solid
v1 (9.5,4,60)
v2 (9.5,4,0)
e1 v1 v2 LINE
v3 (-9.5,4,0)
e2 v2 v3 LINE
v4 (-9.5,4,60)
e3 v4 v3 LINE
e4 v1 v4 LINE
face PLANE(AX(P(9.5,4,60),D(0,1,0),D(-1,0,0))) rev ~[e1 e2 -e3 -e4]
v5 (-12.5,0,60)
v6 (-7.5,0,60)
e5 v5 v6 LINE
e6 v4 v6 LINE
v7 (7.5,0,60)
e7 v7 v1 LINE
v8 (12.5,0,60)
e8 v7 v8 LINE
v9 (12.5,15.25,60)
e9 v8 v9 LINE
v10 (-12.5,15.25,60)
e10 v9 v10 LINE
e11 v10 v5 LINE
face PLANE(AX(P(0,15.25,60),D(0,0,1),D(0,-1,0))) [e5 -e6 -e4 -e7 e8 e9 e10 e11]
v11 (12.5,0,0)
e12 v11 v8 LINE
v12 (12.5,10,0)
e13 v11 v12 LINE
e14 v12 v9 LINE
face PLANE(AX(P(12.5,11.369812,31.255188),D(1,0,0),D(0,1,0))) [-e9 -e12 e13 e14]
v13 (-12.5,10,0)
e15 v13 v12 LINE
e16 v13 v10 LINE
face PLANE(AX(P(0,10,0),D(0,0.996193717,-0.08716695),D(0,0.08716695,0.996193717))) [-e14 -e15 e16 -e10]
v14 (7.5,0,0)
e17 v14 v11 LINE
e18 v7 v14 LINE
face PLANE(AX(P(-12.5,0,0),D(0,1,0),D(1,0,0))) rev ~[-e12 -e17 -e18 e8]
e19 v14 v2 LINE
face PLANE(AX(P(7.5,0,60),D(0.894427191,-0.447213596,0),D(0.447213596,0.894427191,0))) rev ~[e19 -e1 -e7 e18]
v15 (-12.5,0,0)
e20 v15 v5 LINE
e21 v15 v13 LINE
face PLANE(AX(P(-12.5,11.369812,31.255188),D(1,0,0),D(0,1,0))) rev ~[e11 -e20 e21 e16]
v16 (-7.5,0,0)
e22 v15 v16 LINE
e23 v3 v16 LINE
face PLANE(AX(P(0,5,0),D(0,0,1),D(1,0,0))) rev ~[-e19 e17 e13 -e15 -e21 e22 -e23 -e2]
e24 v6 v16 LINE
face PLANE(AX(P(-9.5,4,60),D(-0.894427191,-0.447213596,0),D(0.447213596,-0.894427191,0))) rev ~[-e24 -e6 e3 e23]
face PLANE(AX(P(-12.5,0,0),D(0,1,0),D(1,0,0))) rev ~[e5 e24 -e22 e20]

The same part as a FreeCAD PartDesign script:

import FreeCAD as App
import Part
import Sketcher

V = App.Vector


def add_polygon(sketch, points):
    """Adds a closed chain of lines whose ends are joined by coincident constraints."""
    first, n = sketch.GeometryCount, len(points)
    for a, b in zip(points, points[1:] + points[:1]):
        sketch.addGeometry(Part.LineSegment(App.Vector(*a, 0), App.Vector(*b, 0)), False)
    for i in range(n):
        sketch.addConstraint(Sketcher.Constraint("Coincident", first + i, 2, first + (i + 1) % n, 1))

doc = App.newDocument("Part")
body = doc.addObject("PartDesign::Body", "Body")

# Sketch on XY plane
sketch1 = body.newObject("Sketcher::SketchObject", "Sketch")
sketch1.AttachmentSupport = (doc.getObject("XY_Plane"), [""])
sketch1.MapMode = "FlatFace"
add_polygon(sketch1, [(-12.5, 10), (-12.5, 0), (12.5, 0), (12.5, 10)])  # lines 0-3
sketch1.addConstraint(Sketcher.Constraint("Vertical", 0))
sketch1.addConstraint(Sketcher.Constraint("Horizontal", 1))
sketch1.addConstraint(Sketcher.Constraint("Vertical", 2))
sketch1.addConstraint(Sketcher.Constraint("Horizontal", 3))
sketch1.addConstraint(Sketcher.Constraint("Symmetric", 0, 2, 1, 2, -1, 1))
sketch1.addConstraint(Sketcher.Constraint("DistanceX", 1, 1, 1, 2, 25.0))
sketch1.addConstraint(Sketcher.Constraint("DistanceY", 0, 2, 0, 1, 10.0))
pad1 = body.newObject("PartDesign::Pad", "Pad")
pad1.Profile = sketch1
pad1.Length = 60

# Sketch on YZ plane
sketch2 = body.newObject("Sketcher::SketchObject", "Sketch001")
sketch2.AttachmentSupport = (doc.getObject("YZ_Plane"), [""])
sketch2.MapMode = "FlatFace"
add_polygon(sketch2, [(10, 60), (10, 0), (15.25, 60)])  # lines 0-2
sketch2.addConstraint(Sketcher.Constraint("Vertical", 0))
sketch2.addConstraint(Sketcher.Constraint("Horizontal", 2))
sketch2.addConstraint(Sketcher.Constraint("PointOnObject", 0, 2, -1))
sketch2.addConstraint(Sketcher.Constraint("DistanceY", 0, 2, 0, 1, 60.0))
sketch2.addConstraint(Sketcher.Constraint("DistanceX", -1, 1, 0, 2, 10.0))
sketch2.addConstraint(Sketcher.Constraint("DistanceX", 2, 2, 2, 1, 5.25))
pad2 = body.newObject("PartDesign::Pad", "Pad001")
pad2.Profile = sketch2
pad2.Length = 25
pad2.Midplane = True

# Sketch on XY plane
sketch3 = body.newObject("Sketcher::SketchObject", "Sketch002")
sketch3.AttachmentSupport = (doc.getObject("XY_Plane"), [""])
sketch3.MapMode = "FlatFace"
sketch3.AttachmentOffset = App.Placement(V(0, 0, 60), App.Rotation())
add_polygon(sketch3, [(-9.5, 4), (-7.5, 0), (7.5, 0), (9.5, 4)])  # lines 0-3
sketch3.addConstraint(Sketcher.Constraint("Horizontal", 1))
sketch3.addConstraint(Sketcher.Constraint("Horizontal", 3))
sketch3.addConstraint(Sketcher.Constraint("Symmetric", 0, 2, 1, 2, -1, 1))
sketch3.addConstraint(Sketcher.Constraint("Equal", 0, 2))
sketch3.addConstraint(Sketcher.Constraint("DistanceX", 1, 1, 1, 2, 15.0))
sketch3.addConstraint(Sketcher.Constraint("DistanceX", 3, 2, 3, 1, 19.0))
sketch3.addConstraint(Sketcher.Constraint("DistanceY", -1, 1, 2, 2, 4.0))
pocket1 = body.newObject("PartDesign::Pocket", "Pocket")
pocket1.Profile = sketch3
pocket1.Type = "ThroughAll"

doc.recompute()
